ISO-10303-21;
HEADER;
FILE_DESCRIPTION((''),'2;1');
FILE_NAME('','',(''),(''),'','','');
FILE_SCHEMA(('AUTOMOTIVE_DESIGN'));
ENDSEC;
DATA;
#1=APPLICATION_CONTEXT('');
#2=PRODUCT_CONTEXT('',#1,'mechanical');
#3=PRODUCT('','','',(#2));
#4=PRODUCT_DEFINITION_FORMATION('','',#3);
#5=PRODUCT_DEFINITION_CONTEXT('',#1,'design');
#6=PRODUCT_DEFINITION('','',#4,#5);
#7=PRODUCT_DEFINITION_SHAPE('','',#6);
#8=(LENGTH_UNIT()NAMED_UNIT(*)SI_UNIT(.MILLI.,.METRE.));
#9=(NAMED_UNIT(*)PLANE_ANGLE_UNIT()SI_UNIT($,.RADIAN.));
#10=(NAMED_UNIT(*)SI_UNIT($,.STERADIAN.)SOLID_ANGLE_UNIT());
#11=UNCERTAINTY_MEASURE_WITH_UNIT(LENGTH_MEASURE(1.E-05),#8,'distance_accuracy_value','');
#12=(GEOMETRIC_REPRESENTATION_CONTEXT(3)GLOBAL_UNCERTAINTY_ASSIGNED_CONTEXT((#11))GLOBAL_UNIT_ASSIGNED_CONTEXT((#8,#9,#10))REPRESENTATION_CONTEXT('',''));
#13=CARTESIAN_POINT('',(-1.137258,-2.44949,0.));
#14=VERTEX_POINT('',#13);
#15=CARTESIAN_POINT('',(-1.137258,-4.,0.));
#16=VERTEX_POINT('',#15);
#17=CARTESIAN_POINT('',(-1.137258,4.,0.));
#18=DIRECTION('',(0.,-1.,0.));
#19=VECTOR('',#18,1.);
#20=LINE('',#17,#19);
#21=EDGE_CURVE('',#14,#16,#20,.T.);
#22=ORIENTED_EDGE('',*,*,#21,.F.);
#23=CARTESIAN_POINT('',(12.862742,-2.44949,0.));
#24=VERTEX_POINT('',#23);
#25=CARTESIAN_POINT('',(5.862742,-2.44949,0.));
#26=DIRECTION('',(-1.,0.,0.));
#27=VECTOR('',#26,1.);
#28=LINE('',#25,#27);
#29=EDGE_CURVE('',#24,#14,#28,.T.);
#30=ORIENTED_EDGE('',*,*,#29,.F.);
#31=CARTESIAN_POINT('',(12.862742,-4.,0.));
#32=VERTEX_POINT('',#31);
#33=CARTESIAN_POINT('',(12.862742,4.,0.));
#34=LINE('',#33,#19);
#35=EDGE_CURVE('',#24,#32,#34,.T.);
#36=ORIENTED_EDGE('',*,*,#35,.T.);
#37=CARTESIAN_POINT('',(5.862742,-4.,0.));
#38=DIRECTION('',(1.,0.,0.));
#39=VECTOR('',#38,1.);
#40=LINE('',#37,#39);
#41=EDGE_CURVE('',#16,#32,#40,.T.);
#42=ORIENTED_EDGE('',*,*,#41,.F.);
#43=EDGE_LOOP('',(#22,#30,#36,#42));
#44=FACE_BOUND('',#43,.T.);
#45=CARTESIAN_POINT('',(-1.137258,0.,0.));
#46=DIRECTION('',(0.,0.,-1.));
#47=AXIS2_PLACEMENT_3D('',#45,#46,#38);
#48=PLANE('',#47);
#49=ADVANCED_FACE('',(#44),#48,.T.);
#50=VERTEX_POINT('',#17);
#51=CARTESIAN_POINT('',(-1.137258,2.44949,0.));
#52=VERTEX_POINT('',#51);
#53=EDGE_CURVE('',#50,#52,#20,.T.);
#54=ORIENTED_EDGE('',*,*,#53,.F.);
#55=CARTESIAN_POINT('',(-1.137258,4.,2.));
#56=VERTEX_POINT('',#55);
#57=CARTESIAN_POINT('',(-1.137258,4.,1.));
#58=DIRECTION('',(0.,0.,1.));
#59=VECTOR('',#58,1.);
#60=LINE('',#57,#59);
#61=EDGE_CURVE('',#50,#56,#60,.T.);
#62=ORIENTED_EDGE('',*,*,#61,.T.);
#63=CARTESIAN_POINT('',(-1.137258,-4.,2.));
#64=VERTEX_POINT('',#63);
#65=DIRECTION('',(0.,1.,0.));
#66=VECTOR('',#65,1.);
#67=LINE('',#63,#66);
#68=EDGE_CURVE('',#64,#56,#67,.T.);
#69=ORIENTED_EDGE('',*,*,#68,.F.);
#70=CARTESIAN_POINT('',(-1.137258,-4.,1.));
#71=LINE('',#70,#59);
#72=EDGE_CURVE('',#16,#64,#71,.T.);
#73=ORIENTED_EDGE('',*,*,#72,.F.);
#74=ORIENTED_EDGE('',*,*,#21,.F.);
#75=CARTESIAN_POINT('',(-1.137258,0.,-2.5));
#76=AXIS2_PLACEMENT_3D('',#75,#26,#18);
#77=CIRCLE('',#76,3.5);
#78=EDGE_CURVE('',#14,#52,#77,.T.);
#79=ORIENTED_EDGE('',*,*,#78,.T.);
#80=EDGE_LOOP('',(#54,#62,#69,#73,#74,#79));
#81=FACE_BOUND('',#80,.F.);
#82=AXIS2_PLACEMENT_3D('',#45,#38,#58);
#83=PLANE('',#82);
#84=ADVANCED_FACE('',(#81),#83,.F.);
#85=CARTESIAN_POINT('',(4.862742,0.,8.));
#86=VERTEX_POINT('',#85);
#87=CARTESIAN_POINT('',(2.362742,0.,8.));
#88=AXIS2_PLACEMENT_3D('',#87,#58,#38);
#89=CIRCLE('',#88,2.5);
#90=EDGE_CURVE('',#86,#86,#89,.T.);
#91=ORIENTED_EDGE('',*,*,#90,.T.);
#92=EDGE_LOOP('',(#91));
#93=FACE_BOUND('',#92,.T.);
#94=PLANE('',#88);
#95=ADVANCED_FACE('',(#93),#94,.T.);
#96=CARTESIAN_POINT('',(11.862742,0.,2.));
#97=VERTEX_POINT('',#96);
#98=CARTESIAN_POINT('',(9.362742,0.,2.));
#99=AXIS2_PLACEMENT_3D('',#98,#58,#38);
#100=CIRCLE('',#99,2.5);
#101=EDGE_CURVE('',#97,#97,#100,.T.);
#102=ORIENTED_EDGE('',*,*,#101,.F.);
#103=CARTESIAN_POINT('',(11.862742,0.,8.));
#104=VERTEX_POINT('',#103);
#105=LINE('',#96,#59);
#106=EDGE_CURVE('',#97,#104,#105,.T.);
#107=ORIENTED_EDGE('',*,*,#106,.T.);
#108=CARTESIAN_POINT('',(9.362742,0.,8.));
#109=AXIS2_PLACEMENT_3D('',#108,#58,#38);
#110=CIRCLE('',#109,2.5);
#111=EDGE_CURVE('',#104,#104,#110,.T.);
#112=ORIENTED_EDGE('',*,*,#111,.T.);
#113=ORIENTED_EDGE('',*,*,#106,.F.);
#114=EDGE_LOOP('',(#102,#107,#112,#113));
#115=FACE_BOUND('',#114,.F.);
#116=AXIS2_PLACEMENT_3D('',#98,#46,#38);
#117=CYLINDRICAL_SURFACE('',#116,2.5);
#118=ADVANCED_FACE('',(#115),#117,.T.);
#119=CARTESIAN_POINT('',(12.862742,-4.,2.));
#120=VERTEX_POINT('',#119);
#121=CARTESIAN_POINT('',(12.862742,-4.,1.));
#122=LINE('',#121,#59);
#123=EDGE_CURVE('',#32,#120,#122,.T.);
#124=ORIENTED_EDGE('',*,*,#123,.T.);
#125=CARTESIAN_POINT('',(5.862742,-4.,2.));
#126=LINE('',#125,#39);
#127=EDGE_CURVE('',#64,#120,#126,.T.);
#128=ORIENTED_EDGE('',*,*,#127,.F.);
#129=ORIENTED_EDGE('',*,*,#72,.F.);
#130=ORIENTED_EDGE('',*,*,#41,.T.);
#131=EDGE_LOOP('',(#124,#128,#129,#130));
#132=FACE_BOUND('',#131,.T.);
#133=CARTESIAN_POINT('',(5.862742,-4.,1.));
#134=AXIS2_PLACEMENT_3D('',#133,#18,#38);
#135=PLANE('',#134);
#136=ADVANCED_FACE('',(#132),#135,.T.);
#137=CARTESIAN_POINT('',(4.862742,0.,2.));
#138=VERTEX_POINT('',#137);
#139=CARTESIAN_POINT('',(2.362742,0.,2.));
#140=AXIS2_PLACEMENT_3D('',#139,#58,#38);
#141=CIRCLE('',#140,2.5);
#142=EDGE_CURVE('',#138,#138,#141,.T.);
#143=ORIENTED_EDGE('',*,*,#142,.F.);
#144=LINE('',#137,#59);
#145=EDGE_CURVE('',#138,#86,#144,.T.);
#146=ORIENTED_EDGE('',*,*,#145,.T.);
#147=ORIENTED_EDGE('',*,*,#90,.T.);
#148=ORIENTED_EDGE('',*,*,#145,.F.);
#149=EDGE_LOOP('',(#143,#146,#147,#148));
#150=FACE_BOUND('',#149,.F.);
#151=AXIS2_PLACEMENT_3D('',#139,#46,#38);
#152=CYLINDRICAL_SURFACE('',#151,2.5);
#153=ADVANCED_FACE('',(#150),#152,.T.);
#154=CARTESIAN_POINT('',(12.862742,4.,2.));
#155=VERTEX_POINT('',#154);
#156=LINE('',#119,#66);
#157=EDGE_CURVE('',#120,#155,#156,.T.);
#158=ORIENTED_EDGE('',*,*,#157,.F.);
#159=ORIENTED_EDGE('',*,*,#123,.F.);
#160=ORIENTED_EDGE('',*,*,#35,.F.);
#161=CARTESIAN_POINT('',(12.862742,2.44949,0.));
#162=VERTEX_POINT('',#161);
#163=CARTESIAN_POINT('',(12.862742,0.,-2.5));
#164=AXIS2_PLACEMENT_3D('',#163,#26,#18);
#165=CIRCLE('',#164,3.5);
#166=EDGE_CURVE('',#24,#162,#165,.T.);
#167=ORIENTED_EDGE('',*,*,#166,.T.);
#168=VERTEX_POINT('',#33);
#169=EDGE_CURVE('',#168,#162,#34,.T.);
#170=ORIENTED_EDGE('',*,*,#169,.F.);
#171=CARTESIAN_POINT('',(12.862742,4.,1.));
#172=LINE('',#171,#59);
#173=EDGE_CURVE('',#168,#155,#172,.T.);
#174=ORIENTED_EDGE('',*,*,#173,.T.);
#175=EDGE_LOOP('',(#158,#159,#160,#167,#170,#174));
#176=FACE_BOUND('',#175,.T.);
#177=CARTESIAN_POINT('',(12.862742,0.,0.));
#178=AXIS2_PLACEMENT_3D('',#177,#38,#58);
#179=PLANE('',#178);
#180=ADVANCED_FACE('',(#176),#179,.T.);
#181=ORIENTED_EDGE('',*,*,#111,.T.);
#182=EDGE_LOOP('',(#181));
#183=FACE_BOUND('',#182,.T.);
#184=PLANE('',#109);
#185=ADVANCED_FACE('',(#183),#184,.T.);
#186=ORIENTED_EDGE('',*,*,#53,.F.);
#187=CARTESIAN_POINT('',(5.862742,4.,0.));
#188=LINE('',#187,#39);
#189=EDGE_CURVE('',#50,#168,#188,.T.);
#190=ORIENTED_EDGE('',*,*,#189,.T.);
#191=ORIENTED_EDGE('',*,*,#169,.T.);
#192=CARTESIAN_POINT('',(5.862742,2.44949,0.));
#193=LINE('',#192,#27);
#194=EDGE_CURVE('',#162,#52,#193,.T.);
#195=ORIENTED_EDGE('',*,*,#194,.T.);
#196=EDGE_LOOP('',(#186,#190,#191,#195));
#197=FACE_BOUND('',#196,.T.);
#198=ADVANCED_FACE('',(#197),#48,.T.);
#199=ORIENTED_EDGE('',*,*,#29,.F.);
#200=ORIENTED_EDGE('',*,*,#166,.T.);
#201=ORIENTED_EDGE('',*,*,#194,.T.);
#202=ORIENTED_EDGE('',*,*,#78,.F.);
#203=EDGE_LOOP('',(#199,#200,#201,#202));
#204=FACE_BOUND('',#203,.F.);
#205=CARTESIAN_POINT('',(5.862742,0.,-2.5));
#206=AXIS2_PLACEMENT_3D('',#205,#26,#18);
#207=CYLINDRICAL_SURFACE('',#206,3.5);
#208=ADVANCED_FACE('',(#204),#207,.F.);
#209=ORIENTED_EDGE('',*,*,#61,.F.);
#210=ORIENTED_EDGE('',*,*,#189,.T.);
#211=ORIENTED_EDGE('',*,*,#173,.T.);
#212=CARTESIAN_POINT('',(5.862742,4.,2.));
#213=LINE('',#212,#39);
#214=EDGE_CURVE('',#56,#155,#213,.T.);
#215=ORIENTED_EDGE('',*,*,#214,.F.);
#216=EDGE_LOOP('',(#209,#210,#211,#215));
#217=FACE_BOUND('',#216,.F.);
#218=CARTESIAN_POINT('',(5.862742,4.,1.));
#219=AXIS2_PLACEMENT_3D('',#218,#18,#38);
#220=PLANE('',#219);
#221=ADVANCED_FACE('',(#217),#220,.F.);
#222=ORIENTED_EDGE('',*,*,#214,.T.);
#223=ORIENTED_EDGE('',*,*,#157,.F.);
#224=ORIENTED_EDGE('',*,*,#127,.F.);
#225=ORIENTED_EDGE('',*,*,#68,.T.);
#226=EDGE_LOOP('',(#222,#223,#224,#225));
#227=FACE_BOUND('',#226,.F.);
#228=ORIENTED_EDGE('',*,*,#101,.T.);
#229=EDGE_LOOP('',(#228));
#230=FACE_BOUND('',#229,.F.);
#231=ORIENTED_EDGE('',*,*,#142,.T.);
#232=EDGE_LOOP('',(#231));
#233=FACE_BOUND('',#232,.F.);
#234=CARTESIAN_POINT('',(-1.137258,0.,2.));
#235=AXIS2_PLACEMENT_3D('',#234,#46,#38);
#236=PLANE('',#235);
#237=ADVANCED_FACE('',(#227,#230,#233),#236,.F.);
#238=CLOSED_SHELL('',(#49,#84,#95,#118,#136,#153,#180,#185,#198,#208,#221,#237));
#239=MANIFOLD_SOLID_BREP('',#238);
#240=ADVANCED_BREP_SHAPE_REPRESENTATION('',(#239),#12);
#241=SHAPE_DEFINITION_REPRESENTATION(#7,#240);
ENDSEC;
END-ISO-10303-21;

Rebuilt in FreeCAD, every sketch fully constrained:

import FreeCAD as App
import Part
import Sketcher
from FreeCAD import Vector


def add_polygon(sketch, points):
    """Adds a closed chain of lines whose ends are joined by coincident constraints."""
    first, n = sketch.GeometryCount, len(points)
    for a, b in zip(points, points[1:] + points[:1]):
        sketch.addGeometry(Part.LineSegment(App.Vector(*a, 0), App.Vector(*b, 0)), False)
    for i in range(n):
        sketch.addConstraint(Sketcher.Constraint("Coincident", first + i, 2, first + (i + 1) % n, 1))

doc = App.newDocument("Part")
body = doc.addObject("PartDesign::Body", "Body")

# Sketch on XZ plane
sketch1 = doc.addObject("Sketcher::SketchObject", "Sketch")
body.addObject(sketch1)
sketch1.AttachmentSupport = (doc.XZ_Plane, [""])
sketch1.MapMode = "FlatFace"
add_polygon(sketch1, [(-1.137258, 2), (-1.137258, 0), (12.862742, 0), (12.862742, 2)])  # lines 0-3
sketch1.addConstraint(Sketcher.Constraint("Vertical", 0))
sketch1.addConstraint(Sketcher.Constraint("Horizontal", 1))
sketch1.addConstraint(Sketcher.Constraint("Vertical", 2))
sketch1.addConstraint(Sketcher.Constraint("Horizontal", 3))
sketch1.addConstraint(Sketcher.Constraint("PointOnObject", 0, 2, -1))
sketch1.addConstraint(Sketcher.Constraint("DistanceX", 1, 1, 1, 2, 14.0))
sketch1.addConstraint(Sketcher.Constraint("DistanceY", 0, 2, 0, 1, 2.0))
sketch1.addConstraint(Sketcher.Constraint("DistanceX", 0, 2, -1, 1, 1.137258))
pad1 = doc.addObject("PartDesign::Pad", "Pad")
body.addObject(pad1)
pad1.Profile = sketch1
pad1.Length = 8
pad1.Midplane = True

# Sketch on XY plane
sketch2 = doc.addObject("Sketcher::SketchObject", "Sketch001")
body.addObject(sketch2)
sketch2.AttachmentSupport = (doc.XY_Plane, [""])
sketch2.MapMode = "FlatFace"
sketch2.AttachmentOffset = App.Placement(Vector(0, 0, 2), App.Rotation())
sketch2.addGeometry(Part.Circle(Vector(9.362742, 0, 0), Vector(0, 0, 1), 2.5), False)
sketch2.addGeometry(Part.Circle(Vector(2.362742, 0, 0), Vector(0, 0, 1), 2.5), False)
sketch2.addConstraint(Sketcher.Constraint("Equal", 0, 1))
sketch2.addConstraint(Sketcher.Constraint("PointOnObject", 0, 3, -1))
sketch2.addConstraint(Sketcher.Constraint("PointOnObject", 1, 3, -1))
sketch2.addConstraint(Sketcher.Constraint("Diameter", 0, 5.0))
sketch2.addConstraint(Sketcher.Constraint("DistanceX", 1, 3, 0, 3, 7.0))
sketch2.addConstraint(Sketcher.Constraint("DistanceX", -1, 1, 0, 3, 9.362742))
pad2 = doc.addObject("PartDesign::Pad", "Pad001")
body.addObject(pad2)
pad2.Profile = sketch2
pad2.Length = 6

# Sketch on YZ plane
sketch3 = doc.addObject("Sketcher::SketchObject", "Sketch002")
body.addObject(sketch3)
sketch3.AttachmentSupport = (doc.YZ_Plane, [""])
sketch3.MapMode = "FlatFace"
sketch3.AttachmentOffset = App.Placement(Vector(0, 0, 5.862742), App.Rotation())
sketch3.addGeometry(Part.Circle(Vector(0, -2.5, 0), Vector(0, 0, 1), 3.5), False)
sketch3.addConstraint(Sketcher.Constraint("PointOnObject", 0, 3, -2))
sketch3.addConstraint(Sketcher.Constraint("Diameter", 0, 7.0))
sketch3.addConstraint(Sketcher.Constraint("DistanceY", 0, 3, -1, 1, 2.5))
pocket1 = doc.addObject("PartDesign::Pocket", "Pocket")
body.addObject(pocket1)
pocket1.Profile = sketch3
pocket1.Length = 25.4
pocket1.Midplane = True

doc.recompute()
